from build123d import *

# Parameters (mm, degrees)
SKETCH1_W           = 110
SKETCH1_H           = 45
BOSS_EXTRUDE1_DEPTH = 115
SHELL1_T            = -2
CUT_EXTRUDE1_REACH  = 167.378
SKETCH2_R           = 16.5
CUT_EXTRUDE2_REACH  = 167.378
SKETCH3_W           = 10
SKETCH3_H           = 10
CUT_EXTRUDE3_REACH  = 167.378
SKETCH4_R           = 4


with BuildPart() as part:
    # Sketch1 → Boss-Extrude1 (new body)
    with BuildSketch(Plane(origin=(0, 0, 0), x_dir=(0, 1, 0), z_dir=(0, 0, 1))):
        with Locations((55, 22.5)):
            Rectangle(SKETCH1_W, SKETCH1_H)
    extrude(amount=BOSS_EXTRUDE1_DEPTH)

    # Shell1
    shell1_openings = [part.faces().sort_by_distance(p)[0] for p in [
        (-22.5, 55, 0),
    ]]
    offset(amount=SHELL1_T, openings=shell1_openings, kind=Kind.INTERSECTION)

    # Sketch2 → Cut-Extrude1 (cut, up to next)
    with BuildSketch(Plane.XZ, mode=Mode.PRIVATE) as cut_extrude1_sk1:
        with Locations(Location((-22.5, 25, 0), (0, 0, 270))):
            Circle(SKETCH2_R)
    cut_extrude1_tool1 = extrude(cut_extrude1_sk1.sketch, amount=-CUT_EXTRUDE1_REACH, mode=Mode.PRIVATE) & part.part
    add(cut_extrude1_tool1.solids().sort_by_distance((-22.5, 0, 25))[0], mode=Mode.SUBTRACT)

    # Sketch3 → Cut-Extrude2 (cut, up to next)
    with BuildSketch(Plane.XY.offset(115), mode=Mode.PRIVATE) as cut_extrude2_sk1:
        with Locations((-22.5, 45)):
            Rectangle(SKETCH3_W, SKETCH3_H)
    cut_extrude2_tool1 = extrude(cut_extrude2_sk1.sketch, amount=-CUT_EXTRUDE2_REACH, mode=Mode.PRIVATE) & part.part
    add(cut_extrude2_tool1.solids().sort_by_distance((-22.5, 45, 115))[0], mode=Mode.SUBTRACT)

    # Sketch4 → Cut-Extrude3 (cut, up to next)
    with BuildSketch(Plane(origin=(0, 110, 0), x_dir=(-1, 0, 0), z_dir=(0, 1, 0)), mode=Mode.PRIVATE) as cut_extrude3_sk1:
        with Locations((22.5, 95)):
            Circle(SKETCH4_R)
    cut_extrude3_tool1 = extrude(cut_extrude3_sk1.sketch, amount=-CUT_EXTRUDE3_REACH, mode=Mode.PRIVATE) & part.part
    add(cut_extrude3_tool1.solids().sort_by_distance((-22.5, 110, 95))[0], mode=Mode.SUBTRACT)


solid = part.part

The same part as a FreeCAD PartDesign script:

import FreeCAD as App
import Part
import Sketcher

V = App.Vector
Q = App.Units.Quantity


def faces_at(feature, points):
    """Names of the faces that lie closest to the given points."""
    faces = feature.Shape.Faces
    near = lambda p: min(range(len(faces)), key=lambda i: faces[i].distToShape(Part.Vertex(*p))[0])
    return sorted({f"Face{near(p) + 1}" for p in points})

doc = App.newDocument("Part")
body = doc.addObject("PartDesign::Body", "Body")

# Sketch on XY plane
sketch1 = body.newObject("Sketcher::SketchObject", "Sketch")
sketch1.AttachmentSupport = (doc.getObject("XY_Plane"), [""])
sketch1.MapMode = "FlatFace"
sketch1.addGeometry(Part.LineSegment(V(-45, 0, 0), V(0, 0, 0)), False)
sketch1.addGeometry(Part.LineSegment(V(0, 0, 0), V(0, 110, 0)), False)
sketch1.addGeometry(Part.LineSegment(V(0, 110, 0), V(-45, 110, 0)), False)
sketch1.addGeometry(Part.LineSegment(V(-45, 110, 0), V(-45, 0, 0)), False)
sketch1.addConstraint(Sketcher.Constraint("Coincident", 0, 2, 1, 1))
sketch1.addConstraint(Sketcher.Constraint("Coincident", 1, 2, 2, 1))
sketch1.addConstraint(Sketcher.Constraint("Coincident", 2, 2, 3, 1))
sketch1.addConstraint(Sketcher.Constraint("Coincident", 3, 2, 0, 1))
sketch1.addConstraint(Sketcher.Constraint("Horizontal", 0))
sketch1.addConstraint(Sketcher.Constraint("Vertical", 1))
sketch1.addConstraint(Sketcher.Constraint("Horizontal", 2))
sketch1.addConstraint(Sketcher.Constraint("Vertical", 3))
sketch1.addConstraint(Sketcher.Constraint("Coincident", 0, 2, -1, 1))
sketch1.addConstraint(Sketcher.Constraint("DistanceX", 0, 1, 0, 2, Q("45 mm")))
sketch1.addConstraint(Sketcher.Constraint("DistanceY", 1, 1, 1, 2, Q("110 mm")))
pad1 = body.newObject("PartDesign::Pad", "Pad")
pad1.Profile = sketch1
pad1.Length = 115
doc.recompute()

thickness = body.newObject("PartDesign::Thickness", "Thickness")
thickness.Base = (pad1, faces_at(pad1, [(-22.5, 55, 0)]))
thickness.Value = 2
thickness.Reversed = True
thickness.Join = "Intersection"

# Sketch on XZ plane
sketch2 = body.newObject("Sketcher::SketchObject", "Sketch001")
sketch2.AttachmentSupport = (doc.getObject("XZ_Plane"), [""])
sketch2.MapMode = "FlatFace"
sketch2.addGeometry(Part.Circle(V(-22, 25, 0), V(0, 0, 1), 16), False)
sketch2.addConstraint(Sketcher.Constraint("Diameter", 0, Q("33 mm")))
sketch2.addConstraint(Sketcher.Constraint("DistanceY", -1, 1, 0, 3, Q("25 mm")))
sketch2.addConstraint(Sketcher.Constraint("DistanceX", 0, 3, -1, 1, Q("22.5 mm")))
pocket1 = body.newObject("PartDesign::Pocket", "Pocket")
pocket1.Profile = sketch2
pocket1.Type = "UpToFirst"

# Sketch on XY plane
sketch3 = body.newObject("Sketcher::SketchObject", "Sketch002")
sketch3.AttachmentSupport = (doc.getObject("XY_Plane"), [""])
sketch3.MapMode = "FlatFace"
sketch3.AttachmentOffset = App.Placement(V(0, 0, 115), App.Rotation())
sketch3.addGeometry(Part.LineSegment(V(-28, 50, 0), V(-28, 40, 0)), False)
sketch3.addGeometry(Part.LineSegment(V(-28, 40, 0), V(-18, 40, 0)), False)
sketch3.addGeometry(Part.LineSegment(V(-18, 40, 0), V(-18, 50, 0)), False)
sketch3.addGeometry(Part.LineSegment(V(-18, 50, 0), V(-28, 50, 0)), False)
sketch3.addConstraint(Sketcher.Constraint("Coincident", 0, 2, 1, 1))
sketch3.addConstraint(Sketcher.Constraint("Coincident", 1, 2, 2, 1))
sketch3.addConstraint(Sketcher.Constraint("Coincident", 2, 2, 3, 1))
sketch3.addConstraint(Sketcher.Constraint("Coincident", 3, 2, 0, 1))
sketch3.addConstraint(Sketcher.Constraint("Vertical", 0))
sketch3.addConstraint(Sketcher.Constraint("Horizontal", 1))
sketch3.addConstraint(Sketcher.Constraint("Vertical", 2))
sketch3.addConstraint(Sketcher.Constraint("Horizontal", 3))
sketch3.addConstraint(Sketcher.Constraint("Equal", 3, 0))
sketch3.addConstraint(Sketcher.Constraint("DistanceX", 1, 1, 1, 2, Q("10 mm")))
sketch3.addConstraint(Sketcher.Constraint("DistanceY", -1, 1, 0, 2, Q("40 mm")))
sketch3.addConstraint(Sketcher.Constraint("DistanceX", 0, 2, -1, 1, Q("27.5 mm")))
pocket2 = body.newObject("PartDesign::Pocket", "Pocket001")
pocket2.Profile = sketch3
pocket2.Type = "UpToFirst"

# Sketch on XZ plane
sketch4 = body.newObject("Sketcher::SketchObject", "Sketch003")
sketch4.AttachmentSupport = (doc.getObject("XZ_Plane"), [""])
sketch4.MapMode = "FlatFace"
sketch4.AttachmentOffset = App.Placement(V(0, 0, -110), App.Rotation())
sketch4.addGeometry(Part.Circle(V(-22.5, 95, 0), V(0, 0, 1), 4), False)
sketch4.addConstraint(Sketcher.Constraint("Diameter", 0, Q("8 mm")))
sketch4.addConstraint(Sketcher.Constraint("DistanceY", -1, 1, 0, 3, Q("95 mm")))
sketch4.addConstraint(Sketcher.Constraint("DistanceX", 0, 3, -1, 1, Q("22.5 mm")))
pocket3 = body.newObject("PartDesign::Pocket", "Pocket002")
pocket3.Profile = sketch4
pocket3.Type = "UpToFirst"
pocket3.Reversed = True

doc.recompute()
